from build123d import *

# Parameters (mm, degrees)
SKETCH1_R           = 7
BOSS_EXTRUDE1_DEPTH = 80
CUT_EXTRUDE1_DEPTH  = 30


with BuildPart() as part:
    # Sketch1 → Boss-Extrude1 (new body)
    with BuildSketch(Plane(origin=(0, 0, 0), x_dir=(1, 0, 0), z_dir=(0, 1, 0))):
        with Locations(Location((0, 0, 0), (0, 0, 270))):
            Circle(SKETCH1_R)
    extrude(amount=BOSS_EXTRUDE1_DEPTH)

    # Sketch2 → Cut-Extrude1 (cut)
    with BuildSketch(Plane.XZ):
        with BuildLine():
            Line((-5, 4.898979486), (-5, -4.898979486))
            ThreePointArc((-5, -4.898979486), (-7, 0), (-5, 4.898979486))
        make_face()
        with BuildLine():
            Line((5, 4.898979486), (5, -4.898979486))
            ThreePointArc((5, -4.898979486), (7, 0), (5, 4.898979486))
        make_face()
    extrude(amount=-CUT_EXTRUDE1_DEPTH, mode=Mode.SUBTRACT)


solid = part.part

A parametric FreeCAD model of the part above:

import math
import FreeCAD as App
import Part
import Sketcher

doc = App.newDocument("Part")
body = doc.addObject("PartDesign::Body", "Body")

# Sketch on XZ plane
sketch1 = body.newObject("Sketcher::SketchObject", "Sketch")
sketch1.AttachmentSupport = (doc.getObject("XZ_Plane"), [""])
sketch1.MapMode = "FlatFace"
sketch1.addGeometry(Part.Circle(App.Vector(0, 0, 0), App.Vector(0, 0, 1), 7), False)
sketch1.addConstraint([
    Sketcher.Constraint("Coincident", 0, 3, -1, 1),
    Sketcher.Constraint("Diameter", 0, 14.0),
])
pad1 = body.newObject("PartDesign::Pad", "Pad")
pad1.Profile = sketch1
pad1.Length = 80
pad1.Reversed = True

# Sketch on XZ plane
sketch2 = body.newObject("Sketcher::SketchObject", "Sketch001")
sketch2.AttachmentSupport = (doc.getObject("XZ_Plane"), [""])
sketch2.MapMode = "FlatFace"
sketch2.addGeometry([
    Part.LineSegment(App.Vector(-5, -5, 0), App.Vector(-5, 5, 0)),
    Part.ArcOfCircle(Part.Circle(App.Vector(0, 0, 0), App.Vector(0, 0, 1), 7), math.radians(136), math.radians(224)),
    Part.LineSegment(App.Vector(5, 5, 0), App.Vector(5, -5, 0)),
    Part.ArcOfCircle(Part.Circle(App.Vector(0, 0, 0), App.Vector(0, 0, 1), 7), math.radians(-44), math.radians(44)),
], False)
sketch2.addConstraint([
    Sketcher.Constraint("Coincident", 0, 1, 1, 2),
    Sketcher.Constraint("Coincident", 1, 1, 0, 2),
    Sketcher.Constraint("Coincident", 2, 1, 3, 2),
    Sketcher.Constraint("Coincident", 3, 1, 2, 2),
    Sketcher.Constraint("Vertical", 0),
    Sketcher.Constraint("Vertical", 2),
    Sketcher.Constraint("Coincident", 1, 3, -1, 1),
    Sketcher.Constraint("Coincident", 3, 3, -1, 1),
    Sketcher.Constraint("Equal", 1, 3),
    Sketcher.Constraint("Horizontal", 1, 1, 2, 1),
    Sketcher.Constraint("Radius", 1, 7.0),
    Sketcher.Constraint("DistanceX", 0, 1, -1, 1, 5.0),
])
pocket1 = body.newObject("PartDesign::Pocket", "Pocket")
pocket1.Profile = sketch2
pocket1.Length = 30

doc.recompute()
